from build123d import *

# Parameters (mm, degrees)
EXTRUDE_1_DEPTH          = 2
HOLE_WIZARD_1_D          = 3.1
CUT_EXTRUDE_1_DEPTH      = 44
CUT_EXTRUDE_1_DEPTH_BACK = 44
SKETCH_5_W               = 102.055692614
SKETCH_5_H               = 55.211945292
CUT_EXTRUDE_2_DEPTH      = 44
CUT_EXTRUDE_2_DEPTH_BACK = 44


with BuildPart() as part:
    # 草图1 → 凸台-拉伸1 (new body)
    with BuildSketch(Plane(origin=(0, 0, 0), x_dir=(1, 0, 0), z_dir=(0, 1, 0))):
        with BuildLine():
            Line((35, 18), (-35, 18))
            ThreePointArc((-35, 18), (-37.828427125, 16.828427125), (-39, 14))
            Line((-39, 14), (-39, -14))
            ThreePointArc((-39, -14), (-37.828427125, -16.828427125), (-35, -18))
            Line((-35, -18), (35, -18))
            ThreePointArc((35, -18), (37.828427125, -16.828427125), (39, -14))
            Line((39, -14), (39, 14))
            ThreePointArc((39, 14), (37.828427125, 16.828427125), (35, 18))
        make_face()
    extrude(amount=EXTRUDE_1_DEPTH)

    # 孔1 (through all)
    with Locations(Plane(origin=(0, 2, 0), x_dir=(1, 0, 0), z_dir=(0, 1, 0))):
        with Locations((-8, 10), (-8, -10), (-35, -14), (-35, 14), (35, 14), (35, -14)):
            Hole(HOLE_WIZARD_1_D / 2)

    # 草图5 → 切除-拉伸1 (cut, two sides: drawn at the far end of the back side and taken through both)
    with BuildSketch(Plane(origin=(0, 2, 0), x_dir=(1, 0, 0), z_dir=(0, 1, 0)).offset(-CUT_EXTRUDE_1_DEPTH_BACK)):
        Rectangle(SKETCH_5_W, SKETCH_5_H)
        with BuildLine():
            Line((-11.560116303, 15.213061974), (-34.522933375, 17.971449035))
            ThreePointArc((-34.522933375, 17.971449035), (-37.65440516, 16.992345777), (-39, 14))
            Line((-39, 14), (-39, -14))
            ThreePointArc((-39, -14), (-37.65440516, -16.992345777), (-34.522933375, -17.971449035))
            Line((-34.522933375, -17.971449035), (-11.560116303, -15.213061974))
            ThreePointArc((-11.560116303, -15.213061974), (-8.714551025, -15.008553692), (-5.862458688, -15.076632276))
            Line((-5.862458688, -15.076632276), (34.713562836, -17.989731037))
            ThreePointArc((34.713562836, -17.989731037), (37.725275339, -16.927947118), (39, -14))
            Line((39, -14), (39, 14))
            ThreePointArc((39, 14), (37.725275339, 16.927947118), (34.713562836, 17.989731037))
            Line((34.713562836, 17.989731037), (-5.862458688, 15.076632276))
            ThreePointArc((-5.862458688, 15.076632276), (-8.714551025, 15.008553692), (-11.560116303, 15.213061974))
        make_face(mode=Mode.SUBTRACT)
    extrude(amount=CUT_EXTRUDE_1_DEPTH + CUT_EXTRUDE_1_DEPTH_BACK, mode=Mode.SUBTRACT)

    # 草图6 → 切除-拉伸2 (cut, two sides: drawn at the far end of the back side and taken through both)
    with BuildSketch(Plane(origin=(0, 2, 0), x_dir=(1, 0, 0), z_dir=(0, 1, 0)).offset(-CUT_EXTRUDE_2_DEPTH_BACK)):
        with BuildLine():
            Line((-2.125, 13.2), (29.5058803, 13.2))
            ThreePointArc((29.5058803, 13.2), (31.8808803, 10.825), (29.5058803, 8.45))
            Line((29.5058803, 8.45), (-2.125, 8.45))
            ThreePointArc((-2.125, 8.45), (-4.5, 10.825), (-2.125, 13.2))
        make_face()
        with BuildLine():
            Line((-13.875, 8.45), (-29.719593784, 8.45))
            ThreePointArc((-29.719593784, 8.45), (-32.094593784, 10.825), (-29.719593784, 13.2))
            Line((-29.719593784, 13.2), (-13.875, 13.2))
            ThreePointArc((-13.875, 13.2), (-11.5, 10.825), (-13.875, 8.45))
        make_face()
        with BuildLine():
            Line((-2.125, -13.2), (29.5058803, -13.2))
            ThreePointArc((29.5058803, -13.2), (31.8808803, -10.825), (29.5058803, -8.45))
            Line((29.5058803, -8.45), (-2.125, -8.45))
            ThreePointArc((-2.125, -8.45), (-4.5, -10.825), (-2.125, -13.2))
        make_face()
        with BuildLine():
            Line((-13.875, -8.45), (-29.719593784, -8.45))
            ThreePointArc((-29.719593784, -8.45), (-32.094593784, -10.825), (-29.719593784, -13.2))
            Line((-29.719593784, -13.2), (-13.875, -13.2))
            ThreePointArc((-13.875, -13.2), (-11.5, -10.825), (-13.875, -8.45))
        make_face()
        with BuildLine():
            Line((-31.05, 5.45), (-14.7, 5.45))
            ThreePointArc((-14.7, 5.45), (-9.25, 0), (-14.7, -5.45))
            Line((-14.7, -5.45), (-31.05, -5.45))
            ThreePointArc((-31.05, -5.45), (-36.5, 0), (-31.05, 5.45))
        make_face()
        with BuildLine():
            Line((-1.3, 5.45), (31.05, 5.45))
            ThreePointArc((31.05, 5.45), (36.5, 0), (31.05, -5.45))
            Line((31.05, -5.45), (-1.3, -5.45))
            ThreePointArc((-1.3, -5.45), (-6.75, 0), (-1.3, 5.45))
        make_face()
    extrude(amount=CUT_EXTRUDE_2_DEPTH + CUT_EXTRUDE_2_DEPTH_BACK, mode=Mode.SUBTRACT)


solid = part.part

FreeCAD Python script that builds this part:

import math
import FreeCAD as App
import Part
import Sketcher
Q = App.Units.Quantity


def add_polygon(sketch, points):
    """Adds a closed chain of lines whose ends are joined by coincident constraints."""
    first, n = sketch.GeometryCount, len(points)
    for a, b in zip(points, points[1:] + points[:1]):
        sketch.addGeometry(Part.LineSegment(App.Vector(*a, 0), App.Vector(*b, 0)), False)
    for i in range(n):
        sketch.addConstraint(Sketcher.Constraint("Coincident", first + i, 2, first + (i + 1) % n, 1))

doc = App.newDocument("Part")
body = doc.addObject("PartDesign::Body", "Body")

# Sketch on XZ plane
sketch1 = body.newObject("Sketcher::SketchObject", "Sketch")
sketch1.AttachmentSupport = (doc.getObject("XZ_Plane"), [""])
sketch1.MapMode = "FlatFace"
sketch1.addGeometry([
    Part.LineSegment(App.Vector(35, -18, 0), App.Vector(-35, -18, 0)),  # 0
    Part.ArcOfCircle(Part.Circle(App.Vector(-35, -14, 0), App.Vector(0, 0, 1), 4), math.radians(180), math.radians(270)),  # 1
    Part.LineSegment(App.Vector(-39, -14, 0), App.Vector(-39, 14, 0)),  # 2
    Part.ArcOfCircle(Part.Circle(App.Vector(-35, 14, 0), App.Vector(0, 0, 1), 4), math.radians(90), math.radians(180)),  # 3
    Part.LineSegment(App.Vector(-35, 18, 0), App.Vector(35, 18, 0)),  # 4
    Part.ArcOfCircle(Part.Circle(App.Vector(35, 14, 0), App.Vector(0, 0, 1), 4), math.radians(0), math.radians(90)),  # 5
    Part.LineSegment(App.Vector(39, 14, 0), App.Vector(39, -14, 0)),  # 6
    Part.ArcOfCircle(Part.Circle(App.Vector(35, -14, 0), App.Vector(0, 0, 1), 4), math.radians(-90), math.radians(0)),  # 7
], False)
sketch1.addConstraint([
    Sketcher.Constraint("Tangent", 0, 2, 1, 2),
    Sketcher.Constraint("Tangent", 1, 1, 2, 1),
    Sketcher.Constraint("Tangent", 2, 2, 3, 2),
    Sketcher.Constraint("Tangent", 3, 1, 4, 1),
    Sketcher.Constraint("Tangent", 4, 2, 5, 2),
    Sketcher.Constraint("Tangent", 5, 1, 6, 1),
    Sketcher.Constraint("Tangent", 6, 2, 7, 2),
    Sketcher.Constraint("Tangent", 7, 1, 0, 1),
    Sketcher.Constraint("Horizontal", 0),
    Sketcher.Constraint("Vertical", 2),
    Sketcher.Constraint("Horizontal", 4),
    Sketcher.Constraint("Vertical", 6),
    Sketcher.Constraint("Equal", 1, 3),
    Sketcher.Constraint("Equal", 3, 5),
    Sketcher.Constraint("Equal", 5, 7),
    Sketcher.Constraint("Symmetric", 1, 3, 5, 3, -1, 1),
    Sketcher.Constraint("Radius", 1, Q("4 mm")),
    Sketcher.Constraint("DistanceX", 0, 2, 0, 1, Q("70 mm")),
    Sketcher.Constraint("DistanceY", 2, 1, 2, 2, Q("28 mm")),
])
pad1 = body.newObject("PartDesign::Pad", "Pad")
pad1.Profile = sketch1
pad1.Length = 2
pad1.Reversed = True

# Sketch on XZ plane
sketch2 = body.newObject("Sketcher::SketchObject", "Sketch001")
sketch2.AttachmentSupport = (doc.getObject("XZ_Plane"), [""])
sketch2.MapMode = "FlatFace"
sketch2.AttachmentOffset = App.Placement(App.Vector(0, 0, -2), App.Rotation())
sketch2.addGeometry([
    Part.Circle(App.Vector(-8, -10, 0), App.Vector(0, 0, 1), 1.6),  # 0
    Part.Circle(App.Vector(-8, 10, 0), App.Vector(0, 0, 1), 1.6),  # 1
    Part.Circle(App.Vector(-35, 14, 0), App.Vector(0, 0, 1), 1.6),  # 2
    Part.Circle(App.Vector(-35, -14, 0), App.Vector(0, 0, 1), 1.6),  # 3
    Part.Circle(App.Vector(35, -14, 0), App.Vector(0, 0, 1), 1.6),  # 4
    Part.Circle(App.Vector(35, 14, 0), App.Vector(0, 0, 1), 1.6),  # 5
], False)
sketch2.addConstraint([
    Sketcher.Constraint("Equal", 0, 1),
    Sketcher.Constraint("Equal", 1, 2),
    Sketcher.Constraint("Equal", 2, 3),
    Sketcher.Constraint("Equal", 3, 4),
    Sketcher.Constraint("Equal", 4, 5),
    Sketcher.Constraint("Symmetric", 2, 3, 4, 3, -1, 1),
    Sketcher.Constraint("Symmetric", 3, 3, 5, 3, -1, 1),
    Sketcher.Constraint("Symmetric", 3, 3, 4, 3, -2),
    Sketcher.Constraint("Symmetric", 0, 3, 1, 3, -1),
    Sketcher.Constraint("Diameter", 0, Q("3.1 mm")),
    Sketcher.Constraint("DistanceX", 0, 3, -1, 1, Q("8 mm")),
    Sketcher.Constraint("DistanceY", 0, 3, -1, 1, Q("10 mm")),
    Sketcher.Constraint("DistanceX", 2, 3, -1, 1, Q("35 mm")),
    Sketcher.Constraint("DistanceY", -1, 1, 2, 3, Q("14 mm")),
])
doc.recompute()
hole = body.newObject("PartDesign::Hole", "Hole")
hole.Profile = sketch2
hole.ThreadType = "None"
hole.Diameter = 3.1
hole.DepthType = "ThroughAll"
hole.Reversed = True

# Sketch on XZ plane
sketch3 = body.newObject("Sketcher::SketchObject", "Sketch002")
sketch3.AttachmentSupport = (doc.getObject("XZ_Plane"), [""])
sketch3.MapMode = "FlatFace"
sketch3.AttachmentOffset = App.Placement(App.Vector(0, 0, -2), App.Rotation())
add_polygon(sketch3, [(-51, -27.6), (-51, 27.6), (51, 27.6), (51, -27.6)])  # lines 0-3
sketch3.addGeometry(Part.LineSegment(App.Vector(-34.5, -18, 0), App.Vector(-11.6, -15.2, 0)), False)  # 4
sketch3.addGeometry(Part.ArcOfCircle(Part.Circle(App.Vector(-8, -44.9, 0), App.Vector(0, 0, 1), 29.9), math.radians(85.89), math.radians(96.85)), False)  # 5
sketch3.addGeometry(Part.LineSegment(App.Vector(-5.9, -15.1, 0), App.Vector(34.7, -18, 0)), False)  # 6
sketch3.addGeometry(Part.ArcOfCircle(Part.Circle(App.Vector(35, -14, 0), App.Vector(0, 0, 1), 4), math.radians(-94), math.radians(0)), False)  # 7
sketch3.addGeometry(Part.LineSegment(App.Vector(39, -14, 0), App.Vector(39, 14, 0)), False)  # 8
sketch3.addGeometry(Part.ArcOfCircle(Part.Circle(App.Vector(35, 14, 0), App.Vector(0, 0, 1), 4), math.radians(0), math.radians(94)), False)  # 9
sketch3.addGeometry(Part.LineSegment(App.Vector(34.7, 18, 0), App.Vector(-5.9, 15.1, 0)), False)  # 10
sketch3.addGeometry(Part.ArcOfCircle(Part.Circle(App.Vector(-8, 44.9, 0), App.Vector(0, 0, 1), 29.9), math.radians(-96.85), math.radians(-85.89)), False)  # 11
sketch3.addGeometry(Part.LineSegment(App.Vector(-11.6, 15.2, 0), App.Vector(-34.5, 18, 0)), False)  # 12
sketch3.addGeometry(Part.ArcOfCircle(Part.Circle(App.Vector(-35, 14, 0), App.Vector(0, 0, 1), 4), math.radians(83), math.radians(180)), False)  # 13
sketch3.addGeometry(Part.LineSegment(App.Vector(-39, 14, 0), App.Vector(-39, -14, 0)), False)  # 14
sketch3.addGeometry(Part.ArcOfCircle(Part.Circle(App.Vector(-35, -14, 0), App.Vector(0, 0, 1), 4), math.radians(180), math.radians(277)), False)  # 15
sketch3.addConstraint([
    Sketcher.Constraint("Tangent", 4, 2, 5, 2),
    Sketcher.Constraint("Tangent", 5, 1, 6, 1),
    Sketcher.Constraint("Tangent", 6, 2, 7, 1),
    Sketcher.Constraint("Tangent", 7, 2, 8, 1),
    Sketcher.Constraint("Tangent", 8, 2, 9, 1),
    Sketcher.Constraint("Tangent", 9, 2, 10, 1),
    Sketcher.Constraint("Tangent", 10, 2, 11, 2),
    Sketcher.Constraint("Tangent", 11, 1, 12, 1),
    Sketcher.Constraint("Tangent", 12, 2, 13, 1),
    Sketcher.Constraint("Tangent", 13, 2, 14, 1),
    Sketcher.Constraint("Tangent", 14, 2, 15, 1),
    Sketcher.Constraint("Tangent", 15, 2, 4, 1),
    Sketcher.Constraint("Vertical", 0),
    Sketcher.Constraint("Horizontal", 1),
    Sketcher.Constraint("Vertical", 2),
    Sketcher.Constraint("Horizontal", 3),
    Sketcher.Constraint("Vertical", 8),
    Sketcher.Constraint("Vertical", 14),
    Sketcher.Constraint("Equal", 7, 9),
    Sketcher.Constraint("Equal", 5, 11),
    Sketcher.Constraint("Equal", 9, 13),
    Sketcher.Constraint("Equal", 13, 15),
    Sketcher.Constraint("Symmetric", 7, 3, 13, 3, -1, 1),
    Sketcher.Constraint("Symmetric", 0, 2, 2, 2, -1, 1),
    Sketcher.Constraint("Symmetric", 5, 3, 11, 3, -1),
    Sketcher.Constraint("Horizontal", 9, 3, 13, 3),
    Sketcher.Constraint("Horizontal", 7, 3, 15, 3),
    Sketcher.Constraint("Radius", 7, Q("4 mm")),
    Sketcher.Constraint("DistanceY", 8, 1, 8, 2, Q("28 mm")),
    Sketcher.Constraint("DistanceX", 5, 3, -1, 1, Q("8 mm")),
    Sketcher.Constraint("DistanceX", -1, 1, 7, 3, Q("35 mm")),
    Sketcher.Constraint("Radius", 5, Q("29.850056 mm")),
    Sketcher.Constraint("Distance", 4, Q("23.127898 mm")),
    Sketcher.Constraint("DistanceX", 1, 1, 1, 2, Q("102.055693 mm")),
    Sketcher.Constraint("DistanceY", 0, 1, 0, 2, Q("55.211945 mm")),
])
pocket1 = body.newObject("PartDesign::Pocket", "Pocket")
pocket1.Profile = sketch3
pocket1.Type = "ThroughAll"
pocket1.Midplane = True

# Sketch on XZ plane
sketch4 = body.newObject("Sketcher::SketchObject", "Sketch003")
sketch4.AttachmentSupport = (doc.getObject("XZ_Plane"), [""])
sketch4.MapMode = "FlatFace"
sketch4.AttachmentOffset = App.Placement(App.Vector(0, 0, -2), App.Rotation())
sketch4.addGeometry([
    Part.LineSegment(App.Vector(29.5, -13.2, 0), App.Vector(-2.1, -13.2, 0)),  # 0
    Part.ArcOfCircle(Part.Circle(App.Vector(-2.1, -10.8, 0), App.Vector(0, 0, 1), 2.4), math.radians(90), math.radians(270)),  # 1
    Part.LineSegment(App.Vector(-2.1, -8.4, 0), App.Vector(29.5, -8.4, 0)),  # 2
    Part.ArcOfCircle(Part.Circle(App.Vector(29.5, -10.8, 0), App.Vector(0, 0, 1), 2.4), math.radians(-90), math.radians(90)),  # 3
    Part.LineSegment(App.Vector(-29.7, -8.4, 0), App.Vector(-13.9, -8.4, 0)),  # 4
    Part.ArcOfCircle(Part.Circle(App.Vector(-13.9, -10.8, 0), App.Vector(0, 0, 1), 2.4), math.radians(-90), math.radians(90)),  # 5
    Part.LineSegment(App.Vector(-13.9, -13.2, 0), App.Vector(-29.7, -13.2, 0)),  # 6
    Part.ArcOfCircle(Part.Circle(App.Vector(-29.7, -10.8, 0), App.Vector(0, 0, 1), 2.4), math.radians(90), math.radians(270)),  # 7
    Part.LineSegment(App.Vector(-2.1, 13.2, 0), App.Vector(29.5, 13.2, 0)),  # 8
    Part.ArcOfCircle(Part.Circle(App.Vector(29.5, 10.8, 0), App.Vector(0, 0, 1), 2.4), math.radians(-90), math.radians(90)),  # 9
    Part.LineSegment(App.Vector(29.5, 8.4, 0), App.Vector(-2.1, 8.4, 0)),  # 10
    Part.ArcOfCircle(Part.Circle(App.Vector(-2.1, 10.8, 0), App.Vector(0, 0, 1), 2.4), math.radians(90), math.radians(270)),  # 11
    Part.LineSegment(App.Vector(-13.9, 8.4, 0), App.Vector(-29.7, 8.4, 0)),  # 12
    Part.ArcOfCircle(Part.Circle(App.Vector(-29.7, 10.8, 0), App.Vector(0, 0, 1), 2.4), math.radians(90), math.radians(270)),  # 13
    Part.LineSegment(App.Vector(-29.7, 13.2, 0), App.Vector(-13.9, 13.2, 0)),  # 14
    Part.ArcOfCircle(Part.Circle(App.Vector(-13.9, 10.8, 0), App.Vector(0, 0, 1), 2.4), math.radians(-90), math.radians(90)),  # 15
    Part.LineSegment(App.Vector(-14.7, -5.5, 0), App.Vector(-31.1, -5.5, 0)),  # 16
    Part.ArcOfCircle(Part.Circle(App.Vector(-31.1, 0, 0), App.Vector(0, 0, 1), 5.5), math.radians(90), math.radians(270)),  # 17
    Part.LineSegment(App.Vector(-31.1, 5.5, 0), App.Vector(-14.7, 5.5, 0)),  # 18
    Part.ArcOfCircle(Part.Circle(App.Vector(-14.7, 0, 0), App.Vector(0, 0, 1), 5.5), math.radians(-90), math.radians(90)),  # 19
    Part.LineSegment(App.Vector(31.1, -5.5, 0), App.Vector(-1.3, -5.5, 0)),  # 20
    Part.ArcOfCircle(Part.Circle(App.Vector(-1.3, 0, 0), App.Vector(0, 0, 1), 5.5), math.radians(90), math.radians(270)),  # 21
    Part.LineSegment(App.Vector(-1.3, 5.5, 0), App.Vector(31.1, 5.5, 0)),  # 22
    Part.ArcOfCircle(Part.Circle(App.Vector(31.1, 0, 0), App.Vector(0, 0, 1), 5.5), math.radians(-90), math.radians(90)),  # 23
], False)
sketch4.addConstraint([
    Sketcher.Constraint("Tangent", 0, 2, 1, 2),
    Sketcher.Constraint("Tangent", 1, 1, 2, 1),
    Sketcher.Constraint("Tangent", 2, 2, 3, 2),
    Sketcher.Constraint("Tangent", 3, 1, 0, 1),
    Sketcher.Constraint("Tangent", 4, 2, 5, 2),
    Sketcher.Constraint("Tangent", 5, 1, 6, 1),
    Sketcher.Constraint("Tangent", 6, 2, 7, 2),
    Sketcher.Constraint("Tangent", 7, 1, 4, 1),
    Sketcher.Constraint("Tangent", 8, 2, 9, 2),
    Sketcher.Constraint("Tangent", 9, 1, 10, 1),
    Sketcher.Constraint("Tangent", 10, 2, 11, 2),
    Sketcher.Constraint("Tangent", 11, 1, 8, 1),
    Sketcher.Constraint("Tangent", 12, 2, 13, 2),
    Sketcher.Constraint("Tangent", 13, 1, 14, 1),
    Sketcher.Constraint("Tangent", 14, 2, 15, 2),
    Sketcher.Constraint("Tangent", 15, 1, 12, 1),
    Sketcher.Constraint("Tangent", 16, 2, 17, 2),
    Sketcher.Constraint("Tangent", 17, 1, 18, 1),
    Sketcher.Constraint("Tangent", 18, 2, 19, 2),
    Sketcher.Constraint("Tangent", 19, 1, 16, 1),
    Sketcher.Constraint("Tangent", 20, 2, 21, 2),
    Sketcher.Constraint("Tangent", 21, 1, 22, 1),
    Sketcher.Constraint("Tangent", 22, 2, 23, 2),
    Sketcher.Constraint("Tangent", 23, 1, 20, 1),
    Sketcher.Constraint("Horizontal", 0),
    Sketcher.Constraint("Horizontal", 2),
    Sketcher.Constraint("Horizontal", 4),
    Sketcher.Constraint("Horizontal", 6),
    Sketcher.Constraint("Horizontal", 8),
    Sketcher.Constraint("Horizontal", 10),
    Sketcher.Constraint("Horizontal", 12),
    Sketcher.Constraint("Horizontal", 14),
    Sketcher.Constraint("Horizontal", 16),
    Sketcher.Constraint("Horizontal", 18),
    Sketcher.Constraint("Horizontal", 20),
    Sketcher.Constraint("Horizontal", 22),
    Sketcher.Constraint("Equal", 3, 5),
    Sketcher.Constraint("Equal", 7, 9),
    Sketcher.Constraint("Equal", 11, 13),
    Sketcher.Constraint("Equal", 19, 21),
    Sketcher.Constraint("Symmetric", 17, 3, 23, 3, -1, 1),
    Sketcher.Constraint("Symmetric", 3, 3, 9, 3, -1),
    Sketcher.Constraint("Symmetric", 7, 3, 13, 3, -1),
    Sketcher.Constraint("PointOnObject", 17, 3, -1),
    Sketcher.Constraint("Horizontal", 3, 3, 5, 3),
    Sketcher.Constraint("Vertical", 1, 3, 11, 3),
    Sketcher.Constraint("Vertical", 5, 3, 15, 3),
    Sketcher.Constraint("Radius", 17, Q("5.45 mm")),
    Sketcher.Constraint("Radius", 1, Q("2.375 mm")),
    Sketcher.Constraint("DistanceY", 7, 1, 16, 2, Q("3 mm")),
    Sketcher.Constraint("DistanceX", 16, 2, 16, 1, Q("16.35 mm")),
    Sketcher.Constraint("DistanceX", 20, 2, 20, 1, Q("32.35 mm")),
    Sketcher.Constraint("DistanceX", 19, 3, -1, 1, Q("14.7 mm")),
    Sketcher.Constraint("DistanceX", 5, 3, 1, 3, Q("11.75 mm")),
    Sketcher.Constraint("DistanceX", 1, 3, -1, 1, Q("2.125 mm")),
    Sketcher.Constraint("DistanceX", 0, 2, 0, 1, Q("31.63088 mm")),
    Sketcher.Constraint("DistanceX", 4, 1, 4, 2, Q("15.844594 mm")),
])
pocket2 = body.newObject("PartDesign::Pocket", "Pocket001")
pocket2.Profile = sketch4
pocket2.Type = "ThroughAll"
pocket2.Midplane = True

doc.recompute()
